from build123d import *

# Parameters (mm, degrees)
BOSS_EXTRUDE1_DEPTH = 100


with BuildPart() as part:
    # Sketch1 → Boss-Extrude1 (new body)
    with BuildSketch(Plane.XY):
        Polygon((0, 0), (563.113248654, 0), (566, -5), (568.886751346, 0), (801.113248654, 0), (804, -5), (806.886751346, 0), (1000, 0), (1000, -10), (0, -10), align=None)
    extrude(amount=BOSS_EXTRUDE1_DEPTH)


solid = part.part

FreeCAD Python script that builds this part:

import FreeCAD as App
import Part
import Sketcher

V = App.Vector
Q = App.Units.Quantity

doc = App.newDocument("Part")
body = doc.addObject("PartDesign::Body", "Body")

# Sketch on XY plane
sketch1 = body.newObject("Sketcher::SketchObject", "Sketch")
sketch1.AttachmentSupport = (doc.getObject("XY_Plane"), [""])
sketch1.MapMode = "FlatFace"
sketch1.addGeometry([
    Part.LineSegment(V(563, 0, 0), V(0, 0, 0)),  # 0
    Part.LineSegment(V(0, 0, 0), V(0, -10, 0)),  # 1
    Part.LineSegment(V(0, -10, 0), V(1000, -10, 0)),  # 2
    Part.LineSegment(V(1000, -10, 0), V(1000, 0, 0)),  # 3
    Part.LineSegment(V(1000, 0, 0), V(807, 0, 0)),  # 4
    Part.LineSegment(V(807, 0, 0), V(804, -5, 0)),  # 5
    Part.LineSegment(V(804, -5, 0), V(801, 0, 0)),  # 6
    Part.LineSegment(V(801, 0, 0), V(569, 0, 0)),  # 7
    Part.LineSegment(V(569, 0, 0), V(566, -5, 0)),  # 8
    Part.LineSegment(V(566, -5, 0), V(563, 0, 0)),  # 9
], False)
sketch1.addConstraint([
    Sketcher.Constraint("Coincident", 0, 2, 1, 1),
    Sketcher.Constraint("Coincident", 1, 2, 2, 1),
    Sketcher.Constraint("Coincident", 2, 2, 3, 1),
    Sketcher.Constraint("Coincident", 3, 2, 4, 1),
    Sketcher.Constraint("Coincident", 4, 2, 5, 1),
    Sketcher.Constraint("Coincident", 5, 2, 6, 1),
    Sketcher.Constraint("Coincident", 6, 2, 7, 1),
    Sketcher.Constraint("Coincident", 7, 2, 8, 1),
    Sketcher.Constraint("Coincident", 8, 2, 9, 1),
    Sketcher.Constraint("Coincident", 9, 2, 0, 1),
    Sketcher.Constraint("Horizontal", 0),
    Sketcher.Constraint("Vertical", 1),
    Sketcher.Constraint("Horizontal", 2),
    Sketcher.Constraint("Vertical", 3),
    Sketcher.Constraint("Horizontal", 4),
    Sketcher.Constraint("Horizontal", 7),
    Sketcher.Constraint("Coincident", 0, 2, -1, 1),
    Sketcher.Constraint("PointOnObject", 3, 2, -1),
    Sketcher.Constraint("PointOnObject", 6, 2, -1),
    Sketcher.Constraint("Parallel", 5, 8),
    Sketcher.Constraint("Parallel", 6, 9),
    Sketcher.Constraint("Horizontal", 5, 2, 8, 2),
    Sketcher.Constraint("Equal", 5, 6),
    Sketcher.Constraint("DistanceX", 2, 1, 2, 2, 1000.0),
    Sketcher.Constraint("DistanceY", 1, 2, 1, 1, 10.0),
    Sketcher.Constraint("Angle", 5, Q("-120 deg")),
    Sketcher.Constraint("DistanceX", -1, 1, 5, 2, 804.0),
    Sketcher.Constraint("DistanceY", 5, 2, -1, 1, 5.0),
    Sketcher.Constraint("DistanceX", -1, 1, 8, 2, 566.0),
])
pad1 = body.newObject("PartDesign::Pad", "Pad")
pad1.Profile = sketch1
pad1.Length = 100

doc.recompute()
